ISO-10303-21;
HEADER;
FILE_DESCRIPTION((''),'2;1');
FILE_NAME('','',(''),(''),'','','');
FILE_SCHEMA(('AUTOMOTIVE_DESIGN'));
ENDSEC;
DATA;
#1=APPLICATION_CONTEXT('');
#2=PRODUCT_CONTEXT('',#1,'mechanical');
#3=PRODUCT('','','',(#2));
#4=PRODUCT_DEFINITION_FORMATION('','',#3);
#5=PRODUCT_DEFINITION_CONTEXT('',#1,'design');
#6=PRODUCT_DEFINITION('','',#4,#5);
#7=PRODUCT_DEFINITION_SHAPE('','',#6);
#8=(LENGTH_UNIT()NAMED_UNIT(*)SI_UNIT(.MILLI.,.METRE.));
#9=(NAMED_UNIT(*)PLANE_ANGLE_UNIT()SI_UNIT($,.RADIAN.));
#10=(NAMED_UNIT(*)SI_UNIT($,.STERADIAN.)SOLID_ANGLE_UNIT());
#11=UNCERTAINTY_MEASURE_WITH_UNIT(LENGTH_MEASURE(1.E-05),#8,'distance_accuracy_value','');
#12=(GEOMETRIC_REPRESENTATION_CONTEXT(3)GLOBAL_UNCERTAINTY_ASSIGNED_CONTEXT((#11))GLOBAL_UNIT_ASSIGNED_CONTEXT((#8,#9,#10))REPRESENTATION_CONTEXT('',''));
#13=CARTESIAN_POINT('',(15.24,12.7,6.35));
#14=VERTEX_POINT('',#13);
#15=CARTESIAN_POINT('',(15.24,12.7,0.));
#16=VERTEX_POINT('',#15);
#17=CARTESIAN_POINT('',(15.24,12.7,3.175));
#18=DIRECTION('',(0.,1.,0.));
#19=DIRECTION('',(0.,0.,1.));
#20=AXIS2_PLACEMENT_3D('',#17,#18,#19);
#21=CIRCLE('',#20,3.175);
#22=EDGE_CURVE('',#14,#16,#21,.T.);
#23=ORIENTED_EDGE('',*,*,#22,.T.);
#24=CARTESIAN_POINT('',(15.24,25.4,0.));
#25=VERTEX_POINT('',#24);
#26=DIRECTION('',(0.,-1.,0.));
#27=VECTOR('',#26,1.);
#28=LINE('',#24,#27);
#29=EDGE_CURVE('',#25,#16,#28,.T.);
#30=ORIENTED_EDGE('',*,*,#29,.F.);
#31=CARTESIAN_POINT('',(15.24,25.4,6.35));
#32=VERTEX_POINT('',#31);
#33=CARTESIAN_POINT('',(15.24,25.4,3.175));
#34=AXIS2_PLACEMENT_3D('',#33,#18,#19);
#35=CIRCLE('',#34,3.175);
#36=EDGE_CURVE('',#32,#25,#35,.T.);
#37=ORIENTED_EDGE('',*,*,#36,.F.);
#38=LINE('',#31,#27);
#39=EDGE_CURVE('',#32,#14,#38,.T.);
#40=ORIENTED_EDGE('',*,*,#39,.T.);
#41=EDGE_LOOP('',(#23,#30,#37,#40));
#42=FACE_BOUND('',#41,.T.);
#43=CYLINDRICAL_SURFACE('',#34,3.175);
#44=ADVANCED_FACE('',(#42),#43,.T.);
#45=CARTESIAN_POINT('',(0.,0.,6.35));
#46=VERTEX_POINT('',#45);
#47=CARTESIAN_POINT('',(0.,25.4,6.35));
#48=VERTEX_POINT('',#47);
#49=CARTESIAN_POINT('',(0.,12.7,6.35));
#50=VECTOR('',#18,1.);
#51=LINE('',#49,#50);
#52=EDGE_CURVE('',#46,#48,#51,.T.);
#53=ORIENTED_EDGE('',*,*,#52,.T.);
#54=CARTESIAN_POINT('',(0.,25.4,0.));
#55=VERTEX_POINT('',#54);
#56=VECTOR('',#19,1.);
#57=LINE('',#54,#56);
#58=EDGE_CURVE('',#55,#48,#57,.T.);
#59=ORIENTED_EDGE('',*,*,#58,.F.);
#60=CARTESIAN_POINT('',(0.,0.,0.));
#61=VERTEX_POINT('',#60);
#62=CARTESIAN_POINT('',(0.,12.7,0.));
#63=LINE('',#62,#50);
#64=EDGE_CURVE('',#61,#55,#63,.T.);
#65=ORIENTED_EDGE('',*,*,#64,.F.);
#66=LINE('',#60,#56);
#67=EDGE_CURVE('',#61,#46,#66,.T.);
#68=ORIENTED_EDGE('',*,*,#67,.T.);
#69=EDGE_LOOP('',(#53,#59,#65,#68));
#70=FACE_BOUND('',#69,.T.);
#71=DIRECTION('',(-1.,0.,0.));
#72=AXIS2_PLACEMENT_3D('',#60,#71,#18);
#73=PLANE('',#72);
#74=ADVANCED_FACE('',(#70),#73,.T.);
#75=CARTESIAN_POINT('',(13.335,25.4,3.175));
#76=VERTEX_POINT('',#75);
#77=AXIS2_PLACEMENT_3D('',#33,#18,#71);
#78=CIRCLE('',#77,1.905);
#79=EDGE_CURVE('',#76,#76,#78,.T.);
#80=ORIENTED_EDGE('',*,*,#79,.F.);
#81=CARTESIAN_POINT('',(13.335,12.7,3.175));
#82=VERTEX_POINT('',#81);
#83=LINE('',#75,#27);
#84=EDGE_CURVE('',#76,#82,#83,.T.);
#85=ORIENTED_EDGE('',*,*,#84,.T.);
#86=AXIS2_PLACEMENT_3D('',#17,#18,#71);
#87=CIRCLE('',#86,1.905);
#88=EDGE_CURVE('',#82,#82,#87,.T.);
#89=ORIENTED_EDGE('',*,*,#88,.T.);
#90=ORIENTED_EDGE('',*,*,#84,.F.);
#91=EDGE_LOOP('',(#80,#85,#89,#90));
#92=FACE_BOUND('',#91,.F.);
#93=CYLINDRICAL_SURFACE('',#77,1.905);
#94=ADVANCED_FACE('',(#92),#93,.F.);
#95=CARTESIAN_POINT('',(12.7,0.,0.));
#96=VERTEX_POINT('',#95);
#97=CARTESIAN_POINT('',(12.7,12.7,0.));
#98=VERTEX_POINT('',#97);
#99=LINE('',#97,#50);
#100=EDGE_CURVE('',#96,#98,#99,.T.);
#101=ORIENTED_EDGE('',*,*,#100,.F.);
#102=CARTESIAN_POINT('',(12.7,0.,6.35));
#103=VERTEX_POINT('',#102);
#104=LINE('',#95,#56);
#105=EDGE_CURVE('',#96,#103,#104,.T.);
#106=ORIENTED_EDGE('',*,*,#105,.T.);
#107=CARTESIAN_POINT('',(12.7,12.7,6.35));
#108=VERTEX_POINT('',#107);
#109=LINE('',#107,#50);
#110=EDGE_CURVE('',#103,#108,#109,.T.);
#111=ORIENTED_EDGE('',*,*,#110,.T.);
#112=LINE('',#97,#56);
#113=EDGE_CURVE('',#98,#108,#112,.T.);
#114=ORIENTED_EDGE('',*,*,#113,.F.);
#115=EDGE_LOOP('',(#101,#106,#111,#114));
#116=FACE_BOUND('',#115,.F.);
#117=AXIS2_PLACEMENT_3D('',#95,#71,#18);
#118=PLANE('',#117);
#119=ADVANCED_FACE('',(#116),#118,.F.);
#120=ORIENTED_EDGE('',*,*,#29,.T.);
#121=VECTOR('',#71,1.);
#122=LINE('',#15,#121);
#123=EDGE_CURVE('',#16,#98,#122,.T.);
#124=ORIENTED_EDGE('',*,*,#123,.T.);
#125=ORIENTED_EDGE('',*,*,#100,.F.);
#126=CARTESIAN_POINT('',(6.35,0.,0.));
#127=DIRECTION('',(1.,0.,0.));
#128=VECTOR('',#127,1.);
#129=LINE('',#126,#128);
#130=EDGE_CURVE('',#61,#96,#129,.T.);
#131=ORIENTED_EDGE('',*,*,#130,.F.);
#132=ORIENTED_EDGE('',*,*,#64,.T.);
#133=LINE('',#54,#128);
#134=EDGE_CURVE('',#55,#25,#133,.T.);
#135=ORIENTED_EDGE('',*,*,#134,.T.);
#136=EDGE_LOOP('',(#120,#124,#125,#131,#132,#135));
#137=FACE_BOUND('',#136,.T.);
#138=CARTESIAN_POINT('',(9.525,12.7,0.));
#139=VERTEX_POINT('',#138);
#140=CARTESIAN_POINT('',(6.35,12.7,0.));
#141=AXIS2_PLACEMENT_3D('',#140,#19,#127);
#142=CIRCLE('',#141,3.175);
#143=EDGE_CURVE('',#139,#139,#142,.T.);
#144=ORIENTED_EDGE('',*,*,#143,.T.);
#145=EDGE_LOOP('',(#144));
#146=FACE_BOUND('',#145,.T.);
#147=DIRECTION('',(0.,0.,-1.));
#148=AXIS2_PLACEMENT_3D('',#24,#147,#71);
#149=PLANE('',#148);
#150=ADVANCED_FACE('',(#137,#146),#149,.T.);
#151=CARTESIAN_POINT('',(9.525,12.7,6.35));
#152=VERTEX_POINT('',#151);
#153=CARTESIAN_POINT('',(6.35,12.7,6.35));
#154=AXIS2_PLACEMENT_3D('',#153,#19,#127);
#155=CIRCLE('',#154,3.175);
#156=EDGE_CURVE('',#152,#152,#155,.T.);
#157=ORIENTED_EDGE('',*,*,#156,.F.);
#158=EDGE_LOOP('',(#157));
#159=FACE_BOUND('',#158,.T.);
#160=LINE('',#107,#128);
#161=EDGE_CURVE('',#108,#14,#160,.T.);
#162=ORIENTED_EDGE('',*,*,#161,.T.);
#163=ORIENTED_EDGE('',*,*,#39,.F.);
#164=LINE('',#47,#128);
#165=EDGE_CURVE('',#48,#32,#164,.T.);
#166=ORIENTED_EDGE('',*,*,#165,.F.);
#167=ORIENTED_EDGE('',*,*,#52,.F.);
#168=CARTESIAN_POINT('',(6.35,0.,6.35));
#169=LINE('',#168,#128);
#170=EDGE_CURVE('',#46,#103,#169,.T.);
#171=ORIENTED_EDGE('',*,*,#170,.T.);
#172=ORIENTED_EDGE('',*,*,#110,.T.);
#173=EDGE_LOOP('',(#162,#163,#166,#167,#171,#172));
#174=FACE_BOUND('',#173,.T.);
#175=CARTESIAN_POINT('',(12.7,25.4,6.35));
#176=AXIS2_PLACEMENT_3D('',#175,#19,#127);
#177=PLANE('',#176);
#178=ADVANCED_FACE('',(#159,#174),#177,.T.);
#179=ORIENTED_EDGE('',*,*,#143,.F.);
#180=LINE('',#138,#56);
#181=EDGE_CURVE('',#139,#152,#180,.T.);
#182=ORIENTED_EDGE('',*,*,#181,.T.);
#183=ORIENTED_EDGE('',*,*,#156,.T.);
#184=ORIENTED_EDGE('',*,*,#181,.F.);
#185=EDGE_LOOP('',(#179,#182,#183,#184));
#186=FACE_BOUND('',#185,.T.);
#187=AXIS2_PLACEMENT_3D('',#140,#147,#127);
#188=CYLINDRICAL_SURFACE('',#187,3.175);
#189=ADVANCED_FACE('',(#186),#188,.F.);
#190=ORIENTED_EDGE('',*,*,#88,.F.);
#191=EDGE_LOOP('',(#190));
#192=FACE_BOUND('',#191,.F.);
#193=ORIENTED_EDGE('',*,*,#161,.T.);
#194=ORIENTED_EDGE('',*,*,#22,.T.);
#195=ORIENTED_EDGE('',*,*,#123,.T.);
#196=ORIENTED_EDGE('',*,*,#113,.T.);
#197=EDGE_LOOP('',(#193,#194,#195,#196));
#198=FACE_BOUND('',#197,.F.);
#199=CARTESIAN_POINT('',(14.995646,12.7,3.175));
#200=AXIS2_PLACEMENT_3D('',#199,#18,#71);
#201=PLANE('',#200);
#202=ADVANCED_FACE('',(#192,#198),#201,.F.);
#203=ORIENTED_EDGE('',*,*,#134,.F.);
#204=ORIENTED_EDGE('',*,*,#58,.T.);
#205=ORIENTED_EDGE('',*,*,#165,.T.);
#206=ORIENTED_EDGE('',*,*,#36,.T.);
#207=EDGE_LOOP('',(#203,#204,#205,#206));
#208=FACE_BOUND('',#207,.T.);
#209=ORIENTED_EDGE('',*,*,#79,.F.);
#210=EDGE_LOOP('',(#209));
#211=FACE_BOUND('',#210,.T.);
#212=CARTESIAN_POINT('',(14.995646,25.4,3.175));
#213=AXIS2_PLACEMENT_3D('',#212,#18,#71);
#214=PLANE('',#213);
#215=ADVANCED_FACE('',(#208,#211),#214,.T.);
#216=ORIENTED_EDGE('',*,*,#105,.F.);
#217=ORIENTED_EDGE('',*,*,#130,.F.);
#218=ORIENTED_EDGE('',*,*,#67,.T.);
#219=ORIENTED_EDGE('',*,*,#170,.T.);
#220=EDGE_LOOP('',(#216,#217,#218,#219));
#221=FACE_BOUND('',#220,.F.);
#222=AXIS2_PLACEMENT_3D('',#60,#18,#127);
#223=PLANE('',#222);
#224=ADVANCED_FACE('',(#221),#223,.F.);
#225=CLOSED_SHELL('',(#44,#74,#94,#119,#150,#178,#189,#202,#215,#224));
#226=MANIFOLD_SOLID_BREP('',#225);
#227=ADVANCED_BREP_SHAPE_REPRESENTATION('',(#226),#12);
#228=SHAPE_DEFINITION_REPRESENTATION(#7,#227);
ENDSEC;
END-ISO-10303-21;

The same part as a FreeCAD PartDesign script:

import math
import FreeCAD as App
import Part
import Sketcher

V = App.Vector
Q = App.Units.Quantity

doc = App.newDocument("Part")
params = doc.addObject("Spreadsheet::Sheet", "Params")
for row, (alias, value) in enumerate([
    ("sketch1_diameter", "0.25 in"),
    ("sketch1_height", "1 in"),
    ("sketch1_width", "0.5 in"),
    ("pad1_length", "0.25 in"),
    ("sketch2_diameter", "0.15 in"),
    ("sketch2_width", "0.1 in"),
    ("sketch2_radius", "0.125 in"),
    ("pad2_length", "0.5 in"),
], start=1):
    params.set(f"A{row}", alias)
    params.set(f"B{row}", "=" + value)
    params.setAlias(f"B{row}", alias)

body = doc.addObject("PartDesign::Body", "Body")

# Sketch on XY plane
sketch1 = body.newObject("Sketcher::SketchObject", "Sketch")
sketch1.AttachmentSupport = (doc.getObject("XY_Plane"), [""])
sketch1.MapMode = "FlatFace"
sketch1.addGeometry(Part.LineSegment(V(0, 25.4, 0), V(0, 0, 0)), False)
sketch1.addGeometry(Part.LineSegment(V(0, 0, 0), V(12.7, 0, 0)), False)
sketch1.addGeometry(Part.LineSegment(V(12.7, 0, 0), V(12.7, 25.4, 0)), False)
sketch1.addGeometry(Part.LineSegment(V(12.7, 25.4, 0), V(0, 25.4, 0)), False)
sketch1.addGeometry(Part.Circle(V(6.3, 12.7, 0), V(0, 0, 1), 3.2), False)
sketch1.addConstraint(Sketcher.Constraint("Coincident", 0, 2, 1, 1))
sketch1.addConstraint(Sketcher.Constraint("Coincident", 1, 2, 2, 1))
sketch1.addConstraint(Sketcher.Constraint("Coincident", 2, 2, 3, 1))
sketch1.addConstraint(Sketcher.Constraint("Coincident", 3, 2, 0, 1))
sketch1.addConstraint(Sketcher.Constraint("Vertical", 0))
sketch1.addConstraint(Sketcher.Constraint("Horizontal", 1))
sketch1.addConstraint(Sketcher.Constraint("Vertical", 2))
sketch1.addConstraint(Sketcher.Constraint("Horizontal", 3))
sketch1.addConstraint(Sketcher.Constraint("Coincident", 0, 2, -1, 1))
sketch1.addConstraint(Sketcher.Constraint("Diameter", 4, Q("0.25 in")))
sketch1.addConstraint(Sketcher.Constraint("DistanceY", 0, 2, 0, 1, Q("1 in")))
sketch1.addConstraint(Sketcher.Constraint("DistanceX", 1, 1, 1, 2, Q("0.5 in")))
sketch1.addConstraint(Sketcher.Constraint("DistanceY", -1, 1, 4, 3, Q("0.5 in")))
sketch1.addConstraint(Sketcher.Constraint("DistanceX", -1, 1, 4, 3, Q("0.25 in")))
sketch1.setExpression("Constraints[9]", "Params.sketch1_diameter")
sketch1.setExpression("Constraints[10]", "Params.sketch1_height")
sketch1.setExpression("Constraints[11]", "Params.sketch1_width")
pad1 = body.newObject("PartDesign::Pad", "Pad")
pad1.Profile = sketch1
pad1.setExpression("Length", "Params.pad1_length")

# Sketch on XZ plane
sketch2 = body.newObject("Sketcher::SketchObject", "Sketch001")
sketch2.AttachmentSupport = (doc.getObject("XZ_Plane"), [""])
sketch2.MapMode = "FlatFace"
sketch2.AttachmentOffset = App.Placement(V(0, 0, -1 * 25.4), App.Rotation())
sketch2.addGeometry(Part.LineSegment(V(12.7, 0, 0), V(12.7, 6.3, 0)), False)
sketch2.addGeometry(Part.LineSegment(V(12.7, 6.3, 0), V(15.2, 6.3, 0)), False)
sketch2.addGeometry(Part.ArcOfCircle(Part.Circle(V(15.2, 3.2, 0), V(0, 0, 1), 3.2), math.radians(-90), math.radians(90)), False)
sketch2.addGeometry(Part.LineSegment(V(15.2, 0, 0), V(12.7, 0, 0)), False)
sketch2.addGeometry(Part.Circle(V(15.2, 3.2, 0), V(0, 0, 1), 1.9), False)
sketch2.addConstraint(Sketcher.Constraint("Coincident", 0, 2, 1, 1))
sketch2.addConstraint(Sketcher.Constraint("Tangent", 1, 2, 2, 2))
sketch2.addConstraint(Sketcher.Constraint("Tangent", 2, 1, 3, 1))
sketch2.addConstraint(Sketcher.Constraint("Coincident", 3, 2, 0, 1))
sketch2.addConstraint(Sketcher.Constraint("Vertical", 0))
sketch2.addConstraint(Sketcher.Constraint("Horizontal", 1))
sketch2.addConstraint(Sketcher.Constraint("Horizontal", 3))
sketch2.addConstraint(Sketcher.Constraint("Coincident", 4, 3, 2, 3))
sketch2.addConstraint(Sketcher.Constraint("PointOnObject", 2, 1, -1))
sketch2.addConstraint(Sketcher.Constraint("Diameter", 4, Q("0.15 in")))
sketch2.addConstraint(Sketcher.Constraint("DistanceX", 1, 1, 1, 2, Q("0.1 in")))
sketch2.addConstraint(Sketcher.Constraint("Radius", 2, Q("0.125 in")))
sketch2.addConstraint(Sketcher.Constraint("DistanceX", -1, 1, 2, 3, Q("0.6 in")))
sketch2.setExpression("Constraints[9]", "Params.sketch2_diameter")
sketch2.setExpression("Constraints[10]", "Params.sketch2_width")
sketch2.setExpression("Constraints[11]", "Params.sketch2_radius")
pad2 = body.newObject("PartDesign::Pad", "Pad001")
pad2.Profile = sketch2
pad2.setExpression("Length", "Params.pad2_length")

doc.recompute()
